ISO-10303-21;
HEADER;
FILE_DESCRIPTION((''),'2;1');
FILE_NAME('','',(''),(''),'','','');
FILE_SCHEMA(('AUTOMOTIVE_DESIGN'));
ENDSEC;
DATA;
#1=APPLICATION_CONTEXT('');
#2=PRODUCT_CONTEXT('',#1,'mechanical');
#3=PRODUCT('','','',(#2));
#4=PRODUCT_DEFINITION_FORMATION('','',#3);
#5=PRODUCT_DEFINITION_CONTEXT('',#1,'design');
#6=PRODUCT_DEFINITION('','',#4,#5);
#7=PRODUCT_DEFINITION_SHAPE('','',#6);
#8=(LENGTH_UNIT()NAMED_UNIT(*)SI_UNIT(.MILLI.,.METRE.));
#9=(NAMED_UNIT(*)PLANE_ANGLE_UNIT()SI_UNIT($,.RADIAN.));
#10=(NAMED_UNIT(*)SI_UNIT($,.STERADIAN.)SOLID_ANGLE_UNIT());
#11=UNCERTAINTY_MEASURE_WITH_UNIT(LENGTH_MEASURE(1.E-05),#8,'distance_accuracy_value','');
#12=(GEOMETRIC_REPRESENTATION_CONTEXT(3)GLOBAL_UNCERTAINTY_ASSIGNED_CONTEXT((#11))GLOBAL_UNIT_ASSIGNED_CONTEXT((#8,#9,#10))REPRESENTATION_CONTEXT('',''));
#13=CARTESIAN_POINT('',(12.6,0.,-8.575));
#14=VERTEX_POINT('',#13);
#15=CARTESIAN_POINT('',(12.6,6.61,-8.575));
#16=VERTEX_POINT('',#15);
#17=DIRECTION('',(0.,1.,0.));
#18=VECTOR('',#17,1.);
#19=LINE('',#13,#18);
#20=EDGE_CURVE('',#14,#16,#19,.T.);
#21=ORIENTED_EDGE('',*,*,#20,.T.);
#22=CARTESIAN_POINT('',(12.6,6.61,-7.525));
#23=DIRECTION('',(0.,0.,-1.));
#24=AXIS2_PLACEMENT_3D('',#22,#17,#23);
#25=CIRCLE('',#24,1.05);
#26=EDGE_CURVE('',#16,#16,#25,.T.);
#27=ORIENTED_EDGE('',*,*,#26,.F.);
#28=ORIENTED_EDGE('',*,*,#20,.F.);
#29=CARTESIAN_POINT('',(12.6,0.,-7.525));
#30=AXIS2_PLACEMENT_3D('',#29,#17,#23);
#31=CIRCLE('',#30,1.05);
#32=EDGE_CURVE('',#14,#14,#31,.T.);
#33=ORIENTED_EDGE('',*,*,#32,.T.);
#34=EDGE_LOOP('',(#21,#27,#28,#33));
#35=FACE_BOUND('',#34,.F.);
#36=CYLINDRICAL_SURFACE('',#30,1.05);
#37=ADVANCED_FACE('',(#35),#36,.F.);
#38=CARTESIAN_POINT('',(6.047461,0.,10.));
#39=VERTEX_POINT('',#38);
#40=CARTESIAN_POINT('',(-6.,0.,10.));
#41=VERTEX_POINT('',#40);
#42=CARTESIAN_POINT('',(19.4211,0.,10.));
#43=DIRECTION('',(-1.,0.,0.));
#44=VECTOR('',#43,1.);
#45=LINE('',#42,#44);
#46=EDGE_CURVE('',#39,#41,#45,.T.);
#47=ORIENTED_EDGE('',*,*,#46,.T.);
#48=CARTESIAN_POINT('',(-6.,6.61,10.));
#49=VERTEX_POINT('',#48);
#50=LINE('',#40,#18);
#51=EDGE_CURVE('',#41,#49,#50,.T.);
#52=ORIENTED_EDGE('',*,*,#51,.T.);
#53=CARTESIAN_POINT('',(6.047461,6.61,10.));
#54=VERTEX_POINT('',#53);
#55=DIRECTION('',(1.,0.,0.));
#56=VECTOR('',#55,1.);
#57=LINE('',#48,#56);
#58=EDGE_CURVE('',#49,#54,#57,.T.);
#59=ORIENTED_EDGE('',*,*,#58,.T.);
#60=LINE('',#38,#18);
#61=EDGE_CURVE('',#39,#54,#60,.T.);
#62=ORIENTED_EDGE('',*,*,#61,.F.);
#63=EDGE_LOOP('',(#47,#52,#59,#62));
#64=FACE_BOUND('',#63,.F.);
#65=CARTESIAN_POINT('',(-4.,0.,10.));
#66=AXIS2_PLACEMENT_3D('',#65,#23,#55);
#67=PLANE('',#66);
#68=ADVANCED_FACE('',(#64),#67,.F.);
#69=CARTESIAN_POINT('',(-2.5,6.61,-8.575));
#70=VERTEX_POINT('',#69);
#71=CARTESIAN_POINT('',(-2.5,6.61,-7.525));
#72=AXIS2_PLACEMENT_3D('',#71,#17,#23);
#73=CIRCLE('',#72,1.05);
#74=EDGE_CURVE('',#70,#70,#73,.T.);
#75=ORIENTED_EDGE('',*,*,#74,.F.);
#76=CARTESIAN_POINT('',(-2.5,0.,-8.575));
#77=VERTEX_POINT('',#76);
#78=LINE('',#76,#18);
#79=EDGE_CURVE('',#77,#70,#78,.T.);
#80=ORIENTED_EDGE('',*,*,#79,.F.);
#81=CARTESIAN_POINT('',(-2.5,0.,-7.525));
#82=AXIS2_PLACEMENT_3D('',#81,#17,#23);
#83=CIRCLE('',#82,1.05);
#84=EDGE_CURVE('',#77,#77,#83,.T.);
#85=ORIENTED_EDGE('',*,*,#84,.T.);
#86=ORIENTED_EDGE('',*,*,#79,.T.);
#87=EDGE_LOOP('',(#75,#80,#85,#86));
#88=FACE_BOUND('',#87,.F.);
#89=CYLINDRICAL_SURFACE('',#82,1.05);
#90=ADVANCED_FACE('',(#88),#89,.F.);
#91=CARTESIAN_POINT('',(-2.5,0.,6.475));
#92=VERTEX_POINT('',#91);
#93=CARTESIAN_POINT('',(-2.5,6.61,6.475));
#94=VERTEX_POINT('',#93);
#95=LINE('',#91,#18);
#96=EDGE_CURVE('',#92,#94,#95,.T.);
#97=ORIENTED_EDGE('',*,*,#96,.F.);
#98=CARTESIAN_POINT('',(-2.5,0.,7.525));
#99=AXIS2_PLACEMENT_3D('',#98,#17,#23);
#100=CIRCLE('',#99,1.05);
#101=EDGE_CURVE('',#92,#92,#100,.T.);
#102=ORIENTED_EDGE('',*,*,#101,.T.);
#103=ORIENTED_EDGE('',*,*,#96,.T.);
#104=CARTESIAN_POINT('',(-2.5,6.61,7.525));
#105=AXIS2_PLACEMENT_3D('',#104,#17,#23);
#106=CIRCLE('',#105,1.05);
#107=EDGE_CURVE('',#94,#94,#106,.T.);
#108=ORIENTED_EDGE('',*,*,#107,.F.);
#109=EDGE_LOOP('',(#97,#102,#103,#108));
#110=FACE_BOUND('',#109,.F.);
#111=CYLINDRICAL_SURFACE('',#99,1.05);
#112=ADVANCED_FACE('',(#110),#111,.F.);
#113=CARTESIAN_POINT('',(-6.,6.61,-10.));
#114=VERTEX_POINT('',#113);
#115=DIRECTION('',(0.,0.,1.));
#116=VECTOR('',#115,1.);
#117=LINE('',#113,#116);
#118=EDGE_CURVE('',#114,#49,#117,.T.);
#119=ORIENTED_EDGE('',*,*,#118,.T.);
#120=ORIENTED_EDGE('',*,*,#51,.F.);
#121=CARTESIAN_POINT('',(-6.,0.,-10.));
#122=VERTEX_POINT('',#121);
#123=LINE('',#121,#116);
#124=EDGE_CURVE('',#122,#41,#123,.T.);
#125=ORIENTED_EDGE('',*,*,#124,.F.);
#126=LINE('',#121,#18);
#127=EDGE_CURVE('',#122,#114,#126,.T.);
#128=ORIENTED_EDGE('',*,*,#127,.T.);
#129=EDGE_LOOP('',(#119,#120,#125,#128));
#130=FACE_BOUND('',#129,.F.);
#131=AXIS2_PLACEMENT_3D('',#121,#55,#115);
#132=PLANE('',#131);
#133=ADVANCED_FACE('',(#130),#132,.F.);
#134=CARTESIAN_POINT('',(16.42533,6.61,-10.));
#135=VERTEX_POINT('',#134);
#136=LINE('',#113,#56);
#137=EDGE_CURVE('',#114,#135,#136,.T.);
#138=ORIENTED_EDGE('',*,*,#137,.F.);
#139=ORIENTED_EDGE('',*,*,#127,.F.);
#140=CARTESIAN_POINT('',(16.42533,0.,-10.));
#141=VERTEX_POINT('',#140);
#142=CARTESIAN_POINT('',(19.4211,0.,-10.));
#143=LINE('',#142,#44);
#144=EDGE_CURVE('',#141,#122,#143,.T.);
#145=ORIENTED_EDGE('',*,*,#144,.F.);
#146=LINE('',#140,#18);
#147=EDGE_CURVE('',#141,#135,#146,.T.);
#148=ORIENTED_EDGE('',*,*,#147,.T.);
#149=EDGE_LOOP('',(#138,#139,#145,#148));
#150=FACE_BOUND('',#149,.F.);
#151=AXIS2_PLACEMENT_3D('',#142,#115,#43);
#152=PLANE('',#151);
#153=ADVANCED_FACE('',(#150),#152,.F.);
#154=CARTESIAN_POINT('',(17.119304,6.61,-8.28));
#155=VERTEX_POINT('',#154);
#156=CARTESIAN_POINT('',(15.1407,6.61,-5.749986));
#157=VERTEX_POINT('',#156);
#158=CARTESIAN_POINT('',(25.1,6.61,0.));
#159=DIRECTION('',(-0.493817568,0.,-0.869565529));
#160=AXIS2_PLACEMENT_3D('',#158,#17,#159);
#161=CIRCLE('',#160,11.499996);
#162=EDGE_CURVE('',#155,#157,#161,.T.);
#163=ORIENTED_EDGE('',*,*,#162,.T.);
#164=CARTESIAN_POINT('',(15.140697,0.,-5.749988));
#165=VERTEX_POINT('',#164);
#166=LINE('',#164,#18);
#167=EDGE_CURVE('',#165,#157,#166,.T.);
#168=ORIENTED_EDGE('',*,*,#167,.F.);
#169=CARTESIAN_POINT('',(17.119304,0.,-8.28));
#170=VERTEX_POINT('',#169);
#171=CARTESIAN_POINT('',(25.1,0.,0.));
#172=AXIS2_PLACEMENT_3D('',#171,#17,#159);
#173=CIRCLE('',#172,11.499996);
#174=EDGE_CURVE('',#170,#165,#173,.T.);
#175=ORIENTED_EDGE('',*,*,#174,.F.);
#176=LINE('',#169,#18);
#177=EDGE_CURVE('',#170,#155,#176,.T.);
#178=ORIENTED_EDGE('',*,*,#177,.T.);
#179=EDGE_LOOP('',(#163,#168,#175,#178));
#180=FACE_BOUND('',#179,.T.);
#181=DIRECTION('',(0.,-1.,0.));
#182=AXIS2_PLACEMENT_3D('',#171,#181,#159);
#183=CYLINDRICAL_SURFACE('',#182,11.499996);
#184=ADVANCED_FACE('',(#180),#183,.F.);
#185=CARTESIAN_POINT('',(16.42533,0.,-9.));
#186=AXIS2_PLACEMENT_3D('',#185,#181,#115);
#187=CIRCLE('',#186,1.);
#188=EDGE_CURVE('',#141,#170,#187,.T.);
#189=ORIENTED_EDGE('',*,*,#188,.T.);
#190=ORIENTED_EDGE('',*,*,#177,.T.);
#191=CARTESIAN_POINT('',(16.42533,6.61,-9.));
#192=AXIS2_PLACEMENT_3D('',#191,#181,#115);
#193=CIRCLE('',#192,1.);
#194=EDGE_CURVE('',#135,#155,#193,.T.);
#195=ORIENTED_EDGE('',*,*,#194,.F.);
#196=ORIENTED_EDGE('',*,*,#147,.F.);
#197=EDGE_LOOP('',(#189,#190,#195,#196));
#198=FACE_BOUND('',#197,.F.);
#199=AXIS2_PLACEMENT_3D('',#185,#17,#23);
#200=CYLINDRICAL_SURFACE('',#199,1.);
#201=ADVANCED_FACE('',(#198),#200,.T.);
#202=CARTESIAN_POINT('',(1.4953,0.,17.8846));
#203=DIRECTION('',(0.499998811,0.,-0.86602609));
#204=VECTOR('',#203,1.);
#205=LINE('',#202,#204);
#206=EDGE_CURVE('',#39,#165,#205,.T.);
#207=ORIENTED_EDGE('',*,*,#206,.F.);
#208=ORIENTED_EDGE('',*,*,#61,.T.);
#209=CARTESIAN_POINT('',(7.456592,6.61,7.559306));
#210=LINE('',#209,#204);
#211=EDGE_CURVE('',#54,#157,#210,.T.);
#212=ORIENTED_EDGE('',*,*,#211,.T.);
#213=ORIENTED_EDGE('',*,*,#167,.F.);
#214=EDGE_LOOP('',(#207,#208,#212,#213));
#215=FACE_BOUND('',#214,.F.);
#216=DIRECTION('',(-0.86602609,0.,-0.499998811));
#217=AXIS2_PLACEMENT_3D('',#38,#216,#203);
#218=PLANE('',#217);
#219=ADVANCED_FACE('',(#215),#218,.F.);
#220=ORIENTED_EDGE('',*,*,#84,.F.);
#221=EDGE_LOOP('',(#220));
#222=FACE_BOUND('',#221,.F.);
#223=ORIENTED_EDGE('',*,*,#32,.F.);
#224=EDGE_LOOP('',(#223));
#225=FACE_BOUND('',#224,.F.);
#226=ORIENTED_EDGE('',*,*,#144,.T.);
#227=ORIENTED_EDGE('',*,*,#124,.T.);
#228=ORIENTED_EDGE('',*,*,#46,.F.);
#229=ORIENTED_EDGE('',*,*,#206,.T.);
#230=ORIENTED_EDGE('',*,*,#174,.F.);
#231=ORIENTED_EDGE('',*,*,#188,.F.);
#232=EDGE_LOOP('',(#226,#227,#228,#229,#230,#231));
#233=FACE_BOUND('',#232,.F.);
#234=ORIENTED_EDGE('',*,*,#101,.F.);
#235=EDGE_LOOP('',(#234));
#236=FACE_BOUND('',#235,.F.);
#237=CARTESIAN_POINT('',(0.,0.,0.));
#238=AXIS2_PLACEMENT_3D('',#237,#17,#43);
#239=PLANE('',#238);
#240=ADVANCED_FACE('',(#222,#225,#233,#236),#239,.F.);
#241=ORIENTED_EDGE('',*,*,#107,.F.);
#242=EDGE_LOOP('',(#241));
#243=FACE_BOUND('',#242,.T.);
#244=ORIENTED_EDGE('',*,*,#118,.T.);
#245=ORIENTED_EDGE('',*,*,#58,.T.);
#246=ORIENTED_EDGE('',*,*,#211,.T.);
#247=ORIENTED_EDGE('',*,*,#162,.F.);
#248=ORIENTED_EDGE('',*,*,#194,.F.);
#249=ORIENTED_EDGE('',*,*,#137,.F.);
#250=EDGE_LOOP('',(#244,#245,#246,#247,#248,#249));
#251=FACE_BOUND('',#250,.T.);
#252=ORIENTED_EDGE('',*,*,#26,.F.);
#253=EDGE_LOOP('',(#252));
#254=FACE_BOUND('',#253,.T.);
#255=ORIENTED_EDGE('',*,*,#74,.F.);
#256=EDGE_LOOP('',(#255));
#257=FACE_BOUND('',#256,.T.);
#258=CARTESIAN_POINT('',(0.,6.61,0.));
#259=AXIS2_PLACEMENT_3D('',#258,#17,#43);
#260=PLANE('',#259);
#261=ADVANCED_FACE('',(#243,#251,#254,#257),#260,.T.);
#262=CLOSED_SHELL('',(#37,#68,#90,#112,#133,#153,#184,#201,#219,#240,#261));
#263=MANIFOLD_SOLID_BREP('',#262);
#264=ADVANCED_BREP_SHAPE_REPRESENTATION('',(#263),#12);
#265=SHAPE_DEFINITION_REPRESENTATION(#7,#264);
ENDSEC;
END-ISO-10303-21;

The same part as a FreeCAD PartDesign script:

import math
import FreeCAD as App
import Part
import Sketcher
from FreeCAD import Vector
Q = App.Units.Quantity


def edges_at(feature, points):
    """Names of the edges that pass closest to the given points."""
    edges = feature.Shape.Edges
    near = lambda p: min(range(len(edges)), key=lambda i: edges[i].distToShape(Part.Vertex(*p))[0])
    return sorted({f"Edge{near(p) + 1}" for p in points})

doc = App.newDocument("Part")
body = doc.addObject("PartDesign::Body", "Body")

# Sketch on XZ plane
sketch1 = body.newObject("Sketcher::SketchObject", "Sketch")
sketch1.AttachmentSupport = (doc.getObject("XZ_Plane"), [""])
sketch1.MapMode = "FlatFace"
sketch1.addGeometry([
    Part.LineSegment(Vector(19.4211, -10, 0), Vector(-6, -10, 0)),
    Part.LineSegment(Vector(-6, -10, 0), Vector(-6, 10, 0)),
    Part.LineSegment(Vector(-6, 10, 0), Vector(19.4211, 10, 0)),
    Part.ArcOfCircle(Part.Circle(Vector(25.1, 0, 0), Vector(0, 0, 1), 11.499996), math.radians(119.59181), math.radians(240.40819)),
], False)
sketch1.addConstraint([
    Sketcher.Constraint("Coincident", 0, 2, 1, 1),
    Sketcher.Constraint("Coincident", 1, 2, 2, 1),
    Sketcher.Constraint("Coincident", 2, 2, 3, 1),
    Sketcher.Constraint("Coincident", 3, 2, 0, 1),
    Sketcher.Constraint("Horizontal", 0),
    Sketcher.Constraint("Vertical", 1),
    Sketcher.Constraint("Horizontal", 2),
    Sketcher.Constraint("Symmetric", 2, 2, 3, 2, -1),
    Sketcher.Constraint("Radius", 3, Q("11.5 mm")),
    Sketcher.Constraint("DistanceY", 1, 1, 1, 2, Q("20 mm")),
    Sketcher.Constraint("DistanceX", 0, 2, -1, 1, Q("6 mm")),
    Sketcher.Constraint("DistanceX", -1, 1, 3, 3, Q("25.1 mm")),
])
pad1 = body.newObject("PartDesign::Pad", "Pad")
pad1.Profile = sketch1
pad1.Length = 6.61
pad1.Reversed = True
doc.recompute()

fillet = body.newObject("PartDesign::Fillet", "Fillet")
fillet.Base = (pad1, edges_at(pad1, [(19.421, 3.305, -10), (19.421, 3.305, 10)]))
fillet.Radius = 1

# Sketch on XZ plane
sketch2 = body.newObject("Sketcher::SketchObject", "Sketch001")
sketch2.AttachmentSupport = (doc.getObject("XZ_Plane"), [""])
sketch2.MapMode = "FlatFace"
sketch2.addGeometry([
    Part.Circle(Vector(-2.5, -7.525, 0), Vector(0, 0, 1), 1.05),
    Part.Circle(Vector(-2.5, 7.525, 0), Vector(0, 0, 1), 1.05),
    Part.Circle(Vector(12.6, 7.525, 0), Vector(0, 0, 1), 1.05),
    Part.Circle(Vector(12.6, -7.525, 0), Vector(0, 0, 1), 1.05),
], False)
sketch2.addConstraint([
    Sketcher.Constraint("Equal", 0, 1),
    Sketcher.Constraint("Equal", 1, 2),
    Sketcher.Constraint("Equal", 2, 3),
    Sketcher.Constraint("Symmetric", 0, 3, 1, 3, -1),
    Sketcher.Constraint("Symmetric", 2, 3, 3, 3, -1),
    Sketcher.Constraint("Horizontal", 1, 3, 2, 3),
    Sketcher.Constraint("Diameter", 0, Q("2.1 mm")),
    Sketcher.Constraint("DistanceX", 0, 3, -1, 1, Q("2.5 mm")),
    Sketcher.Constraint("DistanceX", -1, 1, 2, 3, Q("12.6 mm")),
    Sketcher.Constraint("DistanceY", 0, 3, 1, 3, Q("15.05 mm")),
])
doc.recompute()
hole = body.newObject("PartDesign::Hole", "Hole")
hole.Profile = sketch2
hole.ThreadType = "None"
hole.Diameter = 2.1
hole.DepthType = "ThroughAll"

# Sketch on XZ plane
sketch3 = body.newObject("Sketcher::SketchObject", "Sketch002")
sketch3.AttachmentSupport = (doc.getObject("XZ_Plane"), [""])
sketch3.MapMode = "FlatFace"
sketch3.addGeometry([
    Part.LineSegment(Vector(16.4253, 10, 0), Vector(6.047461, 10, 0)),
    Part.LineSegment(Vector(6.047461, 10, 0), Vector(15.140694, -5.74999, 0)),
    Part.ArcOfCircle(Part.Circle(Vector(25.1, 0, 0), Vector(0, 0, 1), 11.499999), math.radians(133.945513), math.radians(209.999921)),
    Part.ArcOfCircle(Part.Circle(Vector(16.4253, 9, 0), Vector(0, 0, 1), 1.000018), math.radians(-46.05341), math.radians(90)),
], False)
sketch3.addConstraint([
    Sketcher.Constraint("Coincident", 0, 2, 1, 1),
    Sketcher.Constraint("Tangent", 1, 2, 2, 2),
    Sketcher.Constraint("Tangent", 2, 1, 3, 1),
    Sketcher.Constraint("Tangent", 3, 2, 0, 1),
    Sketcher.Constraint("Horizontal", 0),
    Sketcher.Constraint("PointOnObject", 2, 3, -1),
    Sketcher.Constraint("Angle", 1, Q("-60 deg")),
    Sketcher.Constraint("Radius", 3, Q("1 mm")),
    Sketcher.Constraint("Radius", 2, Q("11.5 mm")),
    Sketcher.Constraint("DistanceY", -1, 1, 3, 3, Q("9 mm")),
    Sketcher.Constraint("DistanceX", -1, 1, 2, 3, Q("25.1 mm")),
])
pocket1 = body.newObject("PartDesign::Pocket", "Pocket")
pocket1.Profile = sketch3
pocket1.Type = "UpToFirst"

doc.recompute()
